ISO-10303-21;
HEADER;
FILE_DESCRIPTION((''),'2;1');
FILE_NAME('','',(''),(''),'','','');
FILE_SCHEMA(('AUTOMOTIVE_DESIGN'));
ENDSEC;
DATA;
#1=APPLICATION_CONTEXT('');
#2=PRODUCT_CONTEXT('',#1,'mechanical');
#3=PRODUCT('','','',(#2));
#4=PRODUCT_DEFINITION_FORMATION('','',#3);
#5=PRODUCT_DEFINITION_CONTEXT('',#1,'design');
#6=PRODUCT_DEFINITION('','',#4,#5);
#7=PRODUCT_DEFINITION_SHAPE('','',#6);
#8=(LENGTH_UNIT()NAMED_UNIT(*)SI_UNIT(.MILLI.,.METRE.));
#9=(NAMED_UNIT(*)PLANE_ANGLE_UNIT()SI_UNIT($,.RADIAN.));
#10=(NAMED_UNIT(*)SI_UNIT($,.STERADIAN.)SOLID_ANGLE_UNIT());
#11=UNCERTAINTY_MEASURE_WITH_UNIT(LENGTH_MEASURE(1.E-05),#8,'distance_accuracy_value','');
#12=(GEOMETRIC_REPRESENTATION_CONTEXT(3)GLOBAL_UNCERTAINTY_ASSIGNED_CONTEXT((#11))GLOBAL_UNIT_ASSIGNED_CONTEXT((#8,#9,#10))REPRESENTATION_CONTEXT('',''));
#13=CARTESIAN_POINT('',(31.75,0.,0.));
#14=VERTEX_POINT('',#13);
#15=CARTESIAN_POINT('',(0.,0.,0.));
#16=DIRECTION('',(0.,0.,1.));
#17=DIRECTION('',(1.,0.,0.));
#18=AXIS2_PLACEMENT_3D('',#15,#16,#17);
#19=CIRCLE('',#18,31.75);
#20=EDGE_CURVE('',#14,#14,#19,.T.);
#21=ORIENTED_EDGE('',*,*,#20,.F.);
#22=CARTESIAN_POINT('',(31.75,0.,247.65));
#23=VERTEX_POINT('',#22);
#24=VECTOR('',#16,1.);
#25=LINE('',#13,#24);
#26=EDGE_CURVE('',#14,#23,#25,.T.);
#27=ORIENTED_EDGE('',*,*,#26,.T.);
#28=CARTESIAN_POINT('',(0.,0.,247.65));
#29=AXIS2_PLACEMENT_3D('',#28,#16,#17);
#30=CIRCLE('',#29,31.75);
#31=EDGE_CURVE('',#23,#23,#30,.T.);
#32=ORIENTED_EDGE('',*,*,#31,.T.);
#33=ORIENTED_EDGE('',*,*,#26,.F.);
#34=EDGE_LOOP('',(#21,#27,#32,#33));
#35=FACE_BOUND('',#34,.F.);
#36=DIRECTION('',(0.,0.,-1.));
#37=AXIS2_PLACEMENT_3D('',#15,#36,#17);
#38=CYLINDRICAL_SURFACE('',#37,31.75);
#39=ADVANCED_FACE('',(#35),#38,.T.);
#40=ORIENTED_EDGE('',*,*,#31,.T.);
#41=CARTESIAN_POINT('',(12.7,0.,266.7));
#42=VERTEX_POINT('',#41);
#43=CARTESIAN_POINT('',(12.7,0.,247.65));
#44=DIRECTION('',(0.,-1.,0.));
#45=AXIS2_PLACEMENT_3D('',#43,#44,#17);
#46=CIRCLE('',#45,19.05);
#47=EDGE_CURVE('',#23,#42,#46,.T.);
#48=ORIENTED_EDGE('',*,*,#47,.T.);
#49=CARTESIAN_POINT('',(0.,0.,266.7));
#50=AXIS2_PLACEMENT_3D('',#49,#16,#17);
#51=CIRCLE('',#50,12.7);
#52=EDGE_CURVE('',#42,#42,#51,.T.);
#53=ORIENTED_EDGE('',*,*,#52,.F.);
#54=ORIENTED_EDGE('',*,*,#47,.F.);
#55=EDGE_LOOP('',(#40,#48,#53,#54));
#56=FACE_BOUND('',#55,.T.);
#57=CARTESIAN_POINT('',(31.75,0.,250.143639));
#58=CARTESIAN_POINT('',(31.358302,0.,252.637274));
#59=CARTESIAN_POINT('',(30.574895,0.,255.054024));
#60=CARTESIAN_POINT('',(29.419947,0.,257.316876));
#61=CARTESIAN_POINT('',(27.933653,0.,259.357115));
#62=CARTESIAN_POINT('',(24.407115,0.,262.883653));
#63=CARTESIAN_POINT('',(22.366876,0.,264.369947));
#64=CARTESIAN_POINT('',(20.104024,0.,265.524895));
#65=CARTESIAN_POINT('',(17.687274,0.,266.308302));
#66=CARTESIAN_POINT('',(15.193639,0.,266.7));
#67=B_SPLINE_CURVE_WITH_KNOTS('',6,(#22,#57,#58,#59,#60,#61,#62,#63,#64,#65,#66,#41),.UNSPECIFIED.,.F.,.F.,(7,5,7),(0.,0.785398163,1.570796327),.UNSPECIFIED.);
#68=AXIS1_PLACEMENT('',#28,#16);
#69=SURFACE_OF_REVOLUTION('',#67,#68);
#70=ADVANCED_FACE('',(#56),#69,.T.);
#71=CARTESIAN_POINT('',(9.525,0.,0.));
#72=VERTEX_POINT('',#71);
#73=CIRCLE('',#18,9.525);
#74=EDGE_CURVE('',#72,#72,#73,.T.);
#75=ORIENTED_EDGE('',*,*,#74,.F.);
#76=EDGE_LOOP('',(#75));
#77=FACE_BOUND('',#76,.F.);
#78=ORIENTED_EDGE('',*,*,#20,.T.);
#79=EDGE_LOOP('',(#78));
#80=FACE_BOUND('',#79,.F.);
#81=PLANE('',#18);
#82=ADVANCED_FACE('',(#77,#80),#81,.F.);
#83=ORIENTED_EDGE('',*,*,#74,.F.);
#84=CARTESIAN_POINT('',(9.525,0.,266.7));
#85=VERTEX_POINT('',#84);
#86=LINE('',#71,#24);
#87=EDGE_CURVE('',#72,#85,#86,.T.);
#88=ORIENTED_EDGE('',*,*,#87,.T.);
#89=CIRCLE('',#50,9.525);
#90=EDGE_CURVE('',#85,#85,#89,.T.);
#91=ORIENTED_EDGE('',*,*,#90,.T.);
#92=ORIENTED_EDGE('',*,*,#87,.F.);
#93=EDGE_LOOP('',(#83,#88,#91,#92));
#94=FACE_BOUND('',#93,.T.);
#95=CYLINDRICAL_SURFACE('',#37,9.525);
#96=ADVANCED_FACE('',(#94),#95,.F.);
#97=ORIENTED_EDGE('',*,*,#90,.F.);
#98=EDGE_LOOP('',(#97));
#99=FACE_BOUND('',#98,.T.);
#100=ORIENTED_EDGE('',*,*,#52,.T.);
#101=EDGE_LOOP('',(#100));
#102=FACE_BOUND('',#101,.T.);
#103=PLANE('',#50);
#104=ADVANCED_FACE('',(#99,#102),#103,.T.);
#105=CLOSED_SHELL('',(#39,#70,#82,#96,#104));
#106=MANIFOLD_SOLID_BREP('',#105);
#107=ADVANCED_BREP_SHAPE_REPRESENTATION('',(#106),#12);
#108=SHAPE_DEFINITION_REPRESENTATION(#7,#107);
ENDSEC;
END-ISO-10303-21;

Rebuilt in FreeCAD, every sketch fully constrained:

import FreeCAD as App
import Part
import Sketcher

V = App.Vector
Q = App.Units.Quantity


def edges_at(feature, points):
    """Names of the edges that pass closest to the given points."""
    edges = feature.Shape.Edges
    near = lambda p: min(range(len(edges)), key=lambda i: edges[i].distToShape(Part.Vertex(*p))[0])
    return sorted({f"Edge{near(p) + 1}" for p in points})

doc = App.newDocument("Part")
params = doc.addObject("Spreadsheet::Sheet", "Params")
for row, (alias, value) in enumerate([
    ("sketch1_diameter", "2.5 in"),
    ("sketch1_diameter2", "0.75 in"),
    ("pad1_length", "10.5 in"),
    ("fillet_radius", "0.75 in"),
], start=1):
    params.set(f"A{row}", alias)
    params.set(f"B{row}", "=" + value)
    params.setAlias(f"B{row}", alias)

body = doc.addObject("PartDesign::Body", "Body")

# Sketch on XY plane
sketch1 = body.newObject("Sketcher::SketchObject", "Sketch")
sketch1.AttachmentSupport = (doc.getObject("XY_Plane"), [""])
sketch1.MapMode = "FlatFace"
sketch1.addGeometry(Part.Circle(V(0, 0, 0), V(0, 0, 1), 32), False)
sketch1.addGeometry(Part.Circle(V(0, 0, 0), V(0, 0, 1), 10), False)
sketch1.addConstraint(Sketcher.Constraint("Coincident", 0, 3, -1, 1))
sketch1.addConstraint(Sketcher.Constraint("Coincident", 1, 3, -1, 1))
sketch1.addConstraint(Sketcher.Constraint("Diameter", 0, Q("2.5 in")))
sketch1.addConstraint(Sketcher.Constraint("Diameter", 1, Q("0.75 in")))
sketch1.setExpression("Constraints[2]", "Params.sketch1_diameter")
sketch1.setExpression("Constraints[3]", "Params.sketch1_diameter2")
pad1 = body.newObject("PartDesign::Pad", "Pad")
pad1.Profile = sketch1
pad1.setExpression("Length", "Params.pad1_length")
doc.recompute()

fillet = body.newObject("PartDesign::Fillet", "Fillet")
fillet.Base = (pad1, edges_at(pad1, [(-31.75, 0, 266.7)]))
fillet.setExpression("Radius", "Params.fillet_radius")

doc.recompute()
